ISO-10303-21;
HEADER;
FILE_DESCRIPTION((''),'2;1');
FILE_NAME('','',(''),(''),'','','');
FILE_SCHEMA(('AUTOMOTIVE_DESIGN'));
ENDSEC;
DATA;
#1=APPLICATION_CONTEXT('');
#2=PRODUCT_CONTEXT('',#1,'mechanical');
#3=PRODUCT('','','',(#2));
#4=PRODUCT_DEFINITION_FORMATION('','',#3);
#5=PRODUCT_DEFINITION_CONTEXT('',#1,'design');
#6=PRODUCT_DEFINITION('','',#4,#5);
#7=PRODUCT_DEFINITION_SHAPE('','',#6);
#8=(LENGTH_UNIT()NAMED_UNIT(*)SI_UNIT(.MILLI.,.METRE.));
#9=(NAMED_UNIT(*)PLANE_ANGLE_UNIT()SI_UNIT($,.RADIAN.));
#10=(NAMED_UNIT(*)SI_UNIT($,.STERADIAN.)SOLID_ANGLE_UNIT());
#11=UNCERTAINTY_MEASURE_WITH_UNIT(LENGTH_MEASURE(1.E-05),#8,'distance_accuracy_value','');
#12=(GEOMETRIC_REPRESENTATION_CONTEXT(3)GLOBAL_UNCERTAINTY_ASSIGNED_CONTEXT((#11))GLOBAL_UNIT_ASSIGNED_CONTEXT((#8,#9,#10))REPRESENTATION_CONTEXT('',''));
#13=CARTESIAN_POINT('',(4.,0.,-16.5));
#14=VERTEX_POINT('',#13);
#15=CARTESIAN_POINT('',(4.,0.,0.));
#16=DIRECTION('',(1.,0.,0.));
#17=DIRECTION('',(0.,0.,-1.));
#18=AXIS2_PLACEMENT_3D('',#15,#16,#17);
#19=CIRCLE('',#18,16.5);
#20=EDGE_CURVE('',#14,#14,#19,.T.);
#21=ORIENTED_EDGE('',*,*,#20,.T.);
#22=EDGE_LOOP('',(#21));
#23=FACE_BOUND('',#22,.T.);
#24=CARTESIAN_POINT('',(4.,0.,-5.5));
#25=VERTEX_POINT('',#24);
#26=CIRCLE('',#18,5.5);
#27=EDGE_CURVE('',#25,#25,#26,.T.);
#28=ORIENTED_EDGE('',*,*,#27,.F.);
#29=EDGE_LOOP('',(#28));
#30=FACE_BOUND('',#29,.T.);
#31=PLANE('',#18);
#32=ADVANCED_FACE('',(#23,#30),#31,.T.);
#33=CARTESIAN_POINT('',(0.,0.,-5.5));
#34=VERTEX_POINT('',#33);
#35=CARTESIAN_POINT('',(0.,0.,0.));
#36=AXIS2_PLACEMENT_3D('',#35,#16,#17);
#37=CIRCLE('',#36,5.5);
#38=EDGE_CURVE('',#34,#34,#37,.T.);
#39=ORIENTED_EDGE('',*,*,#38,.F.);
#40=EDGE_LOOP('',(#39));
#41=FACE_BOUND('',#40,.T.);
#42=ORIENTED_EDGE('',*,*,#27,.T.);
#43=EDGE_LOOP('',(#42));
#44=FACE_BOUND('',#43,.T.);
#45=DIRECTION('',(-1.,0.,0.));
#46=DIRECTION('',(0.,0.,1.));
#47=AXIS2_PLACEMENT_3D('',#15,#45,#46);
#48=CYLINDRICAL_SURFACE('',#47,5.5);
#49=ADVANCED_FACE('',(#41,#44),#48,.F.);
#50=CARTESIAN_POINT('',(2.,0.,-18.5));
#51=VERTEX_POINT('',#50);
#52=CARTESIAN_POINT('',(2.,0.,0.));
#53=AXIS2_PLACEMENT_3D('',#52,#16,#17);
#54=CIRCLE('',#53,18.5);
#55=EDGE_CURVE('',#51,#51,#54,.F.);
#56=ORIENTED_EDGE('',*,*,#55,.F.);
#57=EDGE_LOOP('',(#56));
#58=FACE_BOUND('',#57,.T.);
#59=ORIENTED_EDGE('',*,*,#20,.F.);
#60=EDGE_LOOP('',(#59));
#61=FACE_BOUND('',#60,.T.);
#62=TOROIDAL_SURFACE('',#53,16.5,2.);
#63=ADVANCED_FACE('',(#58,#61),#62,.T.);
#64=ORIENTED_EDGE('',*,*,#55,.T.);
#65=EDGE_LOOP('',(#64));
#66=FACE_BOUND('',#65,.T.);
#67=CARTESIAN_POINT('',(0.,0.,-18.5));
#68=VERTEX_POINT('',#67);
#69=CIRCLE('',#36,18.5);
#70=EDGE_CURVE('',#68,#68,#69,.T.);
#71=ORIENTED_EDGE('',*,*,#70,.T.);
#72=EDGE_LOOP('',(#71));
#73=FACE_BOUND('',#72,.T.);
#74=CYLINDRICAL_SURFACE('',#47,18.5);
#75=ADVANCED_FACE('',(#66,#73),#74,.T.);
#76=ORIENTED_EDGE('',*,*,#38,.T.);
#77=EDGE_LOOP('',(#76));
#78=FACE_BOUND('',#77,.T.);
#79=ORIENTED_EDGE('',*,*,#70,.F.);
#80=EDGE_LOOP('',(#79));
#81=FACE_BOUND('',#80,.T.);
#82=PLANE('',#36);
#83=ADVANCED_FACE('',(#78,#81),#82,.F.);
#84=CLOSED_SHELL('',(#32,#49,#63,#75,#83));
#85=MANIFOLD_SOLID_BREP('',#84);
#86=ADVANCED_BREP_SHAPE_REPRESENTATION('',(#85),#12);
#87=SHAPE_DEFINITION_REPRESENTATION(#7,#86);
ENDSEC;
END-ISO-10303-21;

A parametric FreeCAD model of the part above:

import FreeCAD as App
import Part
import Sketcher
from FreeCAD import Vector
Q = App.Units.Quantity


def edges_at(feature, points):
    """Names of the edges that pass closest to the given points."""
    edges = feature.Shape.Edges
    near = lambda p: min(range(len(edges)), key=lambda i: edges[i].distToShape(Part.Vertex(*p))[0])
    return sorted({f"Edge{near(p) + 1}" for p in points})

doc = App.newDocument("Part")
body = doc.addObject("PartDesign::Body", "Body")

# Sketch on YZ plane
sketch1 = body.newObject("Sketcher::SketchObject", "Sketch")
sketch1.AttachmentSupport = (doc.getObject("YZ_Plane"), [""])
sketch1.MapMode = "FlatFace"
sketch1.addGeometry(Part.Circle(Vector(0, 0, 0), Vector(0, 0, 1), 18.5), False)
sketch1.addGeometry(Part.Circle(Vector(0, 0, 0), Vector(0, 0, 1), 5.5), False)
sketch1.addConstraint(Sketcher.Constraint("Coincident", 0, 3, -1, 1))
sketch1.addConstraint(Sketcher.Constraint("Coincident", 1, 3, -1, 1))
sketch1.addConstraint(Sketcher.Constraint("Diameter", 0, Q("37 mm")))
sketch1.addConstraint(Sketcher.Constraint("Diameter", 1, Q("11 mm")))
pad1 = body.newObject("PartDesign::Pad", "Pad")
pad1.Profile = sketch1
pad1.Length = 4
doc.recompute()

fillet = body.newObject("PartDesign::Fillet", "Fillet")
fillet.Base = (pad1, edges_at(pad1, [(4, 0, 18.5)]))
fillet.Radius = 2

doc.recompute()
